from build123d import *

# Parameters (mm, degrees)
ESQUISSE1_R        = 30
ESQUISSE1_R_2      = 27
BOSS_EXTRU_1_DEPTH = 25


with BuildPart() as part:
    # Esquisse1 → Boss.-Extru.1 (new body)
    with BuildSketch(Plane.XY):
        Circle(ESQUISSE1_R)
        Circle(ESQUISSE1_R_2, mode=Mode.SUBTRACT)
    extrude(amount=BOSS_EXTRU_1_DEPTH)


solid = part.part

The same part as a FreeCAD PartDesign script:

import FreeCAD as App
import Part
import Sketcher

V = App.Vector

doc = App.newDocument("Part")
body = doc.addObject("PartDesign::Body", "Body")

# Sketch on XY plane
sketch1 = body.newObject("Sketcher::SketchObject", "Sketch")
sketch1.AttachmentSupport = (doc.getObject("XY_Plane"), [""])
sketch1.MapMode = "FlatFace"
sketch1.addGeometry([
    Part.Circle(V(0, 0, 0), V(0, 0, 1), 30),
    Part.Circle(V(0, 0, 0), V(0, 0, 1), 27),
], False)
sketch1.addConstraint([
    Sketcher.Constraint("Coincident", 0, 3, -1, 1),
    Sketcher.Constraint("Coincident", 1, 3, -1, 1),
    Sketcher.Constraint("Diameter", 0, 60.0),
    Sketcher.Constraint("Diameter", 1, 54.0),
])
pad1 = body.newObject("PartDesign::Pad", "Pad")
pad1.Profile = sketch1
pad1.Length = 25

doc.recompute()
